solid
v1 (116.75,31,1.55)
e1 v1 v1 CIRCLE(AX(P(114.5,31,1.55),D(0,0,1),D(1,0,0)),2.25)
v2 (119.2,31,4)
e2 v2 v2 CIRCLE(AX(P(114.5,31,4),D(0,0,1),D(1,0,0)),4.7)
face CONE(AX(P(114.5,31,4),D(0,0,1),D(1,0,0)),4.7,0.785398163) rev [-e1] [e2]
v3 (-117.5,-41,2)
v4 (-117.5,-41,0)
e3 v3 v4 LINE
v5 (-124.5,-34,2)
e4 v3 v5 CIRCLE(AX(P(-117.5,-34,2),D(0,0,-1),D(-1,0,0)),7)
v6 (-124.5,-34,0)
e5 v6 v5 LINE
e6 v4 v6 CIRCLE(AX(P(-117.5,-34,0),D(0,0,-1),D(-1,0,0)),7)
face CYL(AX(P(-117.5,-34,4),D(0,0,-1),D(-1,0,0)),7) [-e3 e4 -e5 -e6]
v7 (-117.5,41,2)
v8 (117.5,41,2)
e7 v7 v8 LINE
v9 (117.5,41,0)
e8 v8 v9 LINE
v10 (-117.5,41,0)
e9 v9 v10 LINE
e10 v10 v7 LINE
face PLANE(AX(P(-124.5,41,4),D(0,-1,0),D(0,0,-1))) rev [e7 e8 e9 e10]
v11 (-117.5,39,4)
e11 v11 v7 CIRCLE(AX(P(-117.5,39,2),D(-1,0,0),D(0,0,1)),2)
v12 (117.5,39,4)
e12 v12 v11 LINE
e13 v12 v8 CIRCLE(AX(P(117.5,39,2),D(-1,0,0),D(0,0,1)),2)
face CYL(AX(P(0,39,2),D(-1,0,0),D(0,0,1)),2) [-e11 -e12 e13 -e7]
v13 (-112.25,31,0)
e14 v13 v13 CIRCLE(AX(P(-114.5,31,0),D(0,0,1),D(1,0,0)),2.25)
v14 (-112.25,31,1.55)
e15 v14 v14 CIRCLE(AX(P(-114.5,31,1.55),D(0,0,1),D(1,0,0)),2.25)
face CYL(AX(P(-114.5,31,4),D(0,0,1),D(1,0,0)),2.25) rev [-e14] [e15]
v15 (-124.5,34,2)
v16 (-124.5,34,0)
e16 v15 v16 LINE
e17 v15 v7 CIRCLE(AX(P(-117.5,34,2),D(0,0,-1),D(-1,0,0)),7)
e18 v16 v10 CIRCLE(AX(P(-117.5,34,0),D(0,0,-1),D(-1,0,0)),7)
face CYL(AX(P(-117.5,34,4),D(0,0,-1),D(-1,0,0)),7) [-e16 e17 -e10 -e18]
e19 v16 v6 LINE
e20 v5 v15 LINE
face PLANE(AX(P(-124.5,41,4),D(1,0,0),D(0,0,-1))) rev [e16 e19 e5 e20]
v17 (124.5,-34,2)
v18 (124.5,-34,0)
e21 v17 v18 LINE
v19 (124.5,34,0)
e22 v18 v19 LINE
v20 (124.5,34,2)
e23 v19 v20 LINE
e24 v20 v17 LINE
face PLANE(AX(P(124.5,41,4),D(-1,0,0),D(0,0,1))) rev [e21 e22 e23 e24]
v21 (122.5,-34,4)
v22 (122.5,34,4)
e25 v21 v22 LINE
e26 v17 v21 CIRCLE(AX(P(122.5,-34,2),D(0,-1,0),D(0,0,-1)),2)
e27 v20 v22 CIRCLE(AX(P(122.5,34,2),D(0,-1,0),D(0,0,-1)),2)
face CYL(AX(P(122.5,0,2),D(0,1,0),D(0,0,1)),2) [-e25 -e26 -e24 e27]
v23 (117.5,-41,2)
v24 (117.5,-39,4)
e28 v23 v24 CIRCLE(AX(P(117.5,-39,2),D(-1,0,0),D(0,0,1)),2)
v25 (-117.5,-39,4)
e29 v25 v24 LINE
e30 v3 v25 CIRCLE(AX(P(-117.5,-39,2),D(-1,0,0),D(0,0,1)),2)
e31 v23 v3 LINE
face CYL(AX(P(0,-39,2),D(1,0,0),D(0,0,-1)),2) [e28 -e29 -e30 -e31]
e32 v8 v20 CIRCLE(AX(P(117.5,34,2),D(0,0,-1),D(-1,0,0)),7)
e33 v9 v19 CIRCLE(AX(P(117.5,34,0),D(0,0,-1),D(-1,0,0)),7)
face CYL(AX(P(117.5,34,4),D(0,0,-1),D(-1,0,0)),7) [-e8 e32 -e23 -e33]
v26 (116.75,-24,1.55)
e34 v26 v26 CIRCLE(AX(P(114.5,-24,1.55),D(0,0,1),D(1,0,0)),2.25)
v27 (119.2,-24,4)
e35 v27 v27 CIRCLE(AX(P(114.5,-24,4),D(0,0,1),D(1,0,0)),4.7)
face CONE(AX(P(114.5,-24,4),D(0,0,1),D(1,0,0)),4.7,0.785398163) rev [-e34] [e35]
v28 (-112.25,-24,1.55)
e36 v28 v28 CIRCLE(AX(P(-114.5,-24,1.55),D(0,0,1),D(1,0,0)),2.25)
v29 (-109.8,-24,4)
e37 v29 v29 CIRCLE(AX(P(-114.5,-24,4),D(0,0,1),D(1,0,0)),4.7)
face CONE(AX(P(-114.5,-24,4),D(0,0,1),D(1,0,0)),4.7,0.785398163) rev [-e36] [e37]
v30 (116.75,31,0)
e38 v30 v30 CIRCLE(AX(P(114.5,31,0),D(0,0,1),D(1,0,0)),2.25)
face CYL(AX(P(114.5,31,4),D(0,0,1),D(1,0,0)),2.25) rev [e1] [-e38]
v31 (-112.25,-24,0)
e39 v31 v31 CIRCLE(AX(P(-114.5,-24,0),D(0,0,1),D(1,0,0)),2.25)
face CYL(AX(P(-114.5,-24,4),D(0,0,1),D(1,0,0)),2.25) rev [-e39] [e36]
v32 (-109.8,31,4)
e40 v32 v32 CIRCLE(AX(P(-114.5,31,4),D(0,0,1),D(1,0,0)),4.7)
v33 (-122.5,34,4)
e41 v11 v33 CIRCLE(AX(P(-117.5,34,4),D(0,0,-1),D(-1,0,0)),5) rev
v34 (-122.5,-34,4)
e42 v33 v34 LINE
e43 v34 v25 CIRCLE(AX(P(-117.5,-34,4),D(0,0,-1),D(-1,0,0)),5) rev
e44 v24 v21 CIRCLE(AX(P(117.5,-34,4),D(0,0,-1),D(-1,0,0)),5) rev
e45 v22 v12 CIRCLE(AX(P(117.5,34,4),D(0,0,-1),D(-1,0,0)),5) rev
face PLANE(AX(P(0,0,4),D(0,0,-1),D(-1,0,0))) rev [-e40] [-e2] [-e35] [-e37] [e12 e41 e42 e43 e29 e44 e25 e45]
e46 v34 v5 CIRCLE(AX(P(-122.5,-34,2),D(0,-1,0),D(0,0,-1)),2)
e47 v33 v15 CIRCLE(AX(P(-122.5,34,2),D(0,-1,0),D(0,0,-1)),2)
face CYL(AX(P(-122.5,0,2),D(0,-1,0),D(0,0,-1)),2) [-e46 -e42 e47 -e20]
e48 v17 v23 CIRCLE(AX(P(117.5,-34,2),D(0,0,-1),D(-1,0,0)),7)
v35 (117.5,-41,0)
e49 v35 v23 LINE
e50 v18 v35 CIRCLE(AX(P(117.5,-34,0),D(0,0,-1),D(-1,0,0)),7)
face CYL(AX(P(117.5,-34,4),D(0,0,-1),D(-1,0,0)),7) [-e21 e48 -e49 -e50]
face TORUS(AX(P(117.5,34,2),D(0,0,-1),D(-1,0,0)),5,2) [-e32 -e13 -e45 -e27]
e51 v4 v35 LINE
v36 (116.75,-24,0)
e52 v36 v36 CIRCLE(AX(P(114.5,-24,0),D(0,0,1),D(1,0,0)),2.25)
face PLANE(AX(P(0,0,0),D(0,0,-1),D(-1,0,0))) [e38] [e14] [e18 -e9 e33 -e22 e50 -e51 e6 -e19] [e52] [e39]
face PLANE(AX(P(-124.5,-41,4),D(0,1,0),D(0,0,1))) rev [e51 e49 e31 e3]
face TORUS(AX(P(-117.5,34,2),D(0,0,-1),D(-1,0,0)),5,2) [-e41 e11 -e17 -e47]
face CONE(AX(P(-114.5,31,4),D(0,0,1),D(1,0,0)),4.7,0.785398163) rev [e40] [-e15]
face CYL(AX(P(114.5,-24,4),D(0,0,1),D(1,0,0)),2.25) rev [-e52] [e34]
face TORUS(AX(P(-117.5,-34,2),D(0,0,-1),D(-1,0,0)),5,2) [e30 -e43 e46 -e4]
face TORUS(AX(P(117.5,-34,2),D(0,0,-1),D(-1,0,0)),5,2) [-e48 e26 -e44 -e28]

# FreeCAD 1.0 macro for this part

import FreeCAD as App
import Part
import Sketcher
Q = App.Units.Quantity


def edges_at(feature, points):
    """Names of the edges that pass closest to the given points."""
    edges = feature.Shape.Edges
    near = lambda p: min(range(len(edges)), key=lambda i: edges[i].distToShape(Part.Vertex(*p))[0])
    return sorted({f"Edge{near(p) + 1}" for p in points})

doc = App.newDocument("Part")
body = doc.addObject("PartDesign::Body", "Body")

# Sketch on XY plane
sketch1 = body.newObject("Sketcher::SketchObject", "Sketch")
sketch1.AttachmentSupport = (doc.getObject("XY_Plane"), [""])
sketch1.MapMode = "FlatFace"
sketch1.addGeometry(Part.LineSegment(App.Vector(-124, 41, 0), App.Vector(-124, -41, 0)), False)
sketch1.addGeometry(Part.LineSegment(App.Vector(-124, -41, 0), App.Vector(124, -41, 0)), False)
sketch1.addGeometry(Part.LineSegment(App.Vector(124, -41, 0), App.Vector(124, 41, 0)), False)
sketch1.addGeometry(Part.LineSegment(App.Vector(124, 41, 0), App.Vector(-124, 41, 0)), False)
sketch1.addConstraint(Sketcher.Constraint("Coincident", 0, 2, 1, 1))
sketch1.addConstraint(Sketcher.Constraint("Coincident", 1, 2, 2, 1))
sketch1.addConstraint(Sketcher.Constraint("Coincident", 2, 2, 3, 1))
sketch1.addConstraint(Sketcher.Constraint("Coincident", 3, 2, 0, 1))
sketch1.addConstraint(Sketcher.Constraint("Vertical", 0))
sketch1.addConstraint(Sketcher.Constraint("Horizontal", 1))
sketch1.addConstraint(Sketcher.Constraint("Vertical", 2))
sketch1.addConstraint(Sketcher.Constraint("Horizontal", 3))
sketch1.addConstraint(Sketcher.Constraint("Symmetric", 0, 2, 2, 2, -1, 1))
sketch1.addConstraint(Sketcher.Constraint("DistanceX", 1, 1, 1, 2, Q("249 mm")))
sketch1.addConstraint(Sketcher.Constraint("DistanceY", 0, 2, 0, 1, Q("82 mm")))
pad1 = body.newObject("PartDesign::Pad", "Pad")
pad1.Profile = sketch1
pad1.Length = 4

# Sketch on YZ plane
sketch2 = body.newObject("Sketcher::SketchObject", "Sketch001")
sketch2.AttachmentSupport = (doc.getObject("YZ_Plane"), [""])
sketch2.MapMode = "FlatFace"
sketch2.AttachmentOffset = App.Placement(App.Vector(0, 0, -114.5), App.Rotation())
sketch2.addGeometry(Part.LineSegment(App.Vector(-24, 0, 0), App.Vector(-24, 4, 0)), False)
sketch2.addGeometry(Part.LineSegment(App.Vector(-24, 4, 0), App.Vector(-28.7, 4, 0)), False)
sketch2.addGeometry(Part.LineSegment(App.Vector(-28.7, 4, 0), App.Vector(-26.2, 1.6, 0)), False)
sketch2.addGeometry(Part.LineSegment(App.Vector(-26.2, 1.6, 0), App.Vector(-26.2, 0, 0)), False)
sketch2.addGeometry(Part.LineSegment(App.Vector(-26.2, 0, 0), App.Vector(-24, 0, 0)), False)
sketch2.addGeometry(Part.LineSegment(App.Vector(-24, 4, 0), App.Vector(-24, 0, 0)), True)  # axis
sketch2.addConstraint(Sketcher.Constraint("Coincident", 0, 2, 1, 1))
sketch2.addConstraint(Sketcher.Constraint("Coincident", 1, 2, 2, 1))
sketch2.addConstraint(Sketcher.Constraint("Coincident", 2, 2, 3, 1))
sketch2.addConstraint(Sketcher.Constraint("Coincident", 3, 2, 4, 1))
sketch2.addConstraint(Sketcher.Constraint("Coincident", 4, 2, 0, 1))
sketch2.addConstraint(Sketcher.Constraint("Vertical", 0))
sketch2.addConstraint(Sketcher.Constraint("Horizontal", 1))
sketch2.addConstraint(Sketcher.Constraint("Vertical", 3))
sketch2.addConstraint(Sketcher.Constraint("Horizontal", 4))
sketch2.addConstraint(Sketcher.Constraint("Vertical", 5))
sketch2.addConstraint(Sketcher.Constraint("Coincident", 5, 1, 0, 2))
sketch2.addConstraint(Sketcher.Constraint("PointOnObject", 3, 2, -1))
sketch2.addConstraint(Sketcher.Constraint("PointOnObject", 5, 2, -1))
sketch2.addConstraint(Sketcher.Constraint("DistanceY", 0, 1, 0, 2, Q("4 mm")))
sketch2.addConstraint(Sketcher.Constraint("Angle", 2, Q("-45 deg")))
sketch2.addConstraint(Sketcher.Constraint("DistanceX", 1, 2, 1, 1, Q("4.7 mm")))
sketch2.addConstraint(Sketcher.Constraint("DistanceX", 0, 2, -1, 1, Q("24 mm")))
sketch2.addConstraint(Sketcher.Constraint("DistanceX", 4, 1, 4, 2, Q("2.25 mm")))
groove = body.newObject("PartDesign::Groove", "Groove")
groove.Profile = sketch2
groove.ReferenceAxis = (sketch2, ["Axis0"])
groove.Angle = 360
doc.recompute()

linearpattern = body.newObject("PartDesign::LinearPattern", "LinearPattern")
linearpattern.Originals = [groove]
linearpattern.Direction = (doc.getObject("Y_Axis"), [""])
linearpattern.Mode = "offset"
linearpattern.Offset = 55
linearpattern.Occurrences = 2
body.Tip = linearpattern
doc.recompute()

linearpattern2 = body.newObject("PartDesign::LinearPattern", "LinearPattern001")
linearpattern2.Originals = [groove]
linearpattern2.Direction = (doc.getObject("X_Axis"), [""])
linearpattern2.Mode = "offset"
linearpattern2.Offset = 229
linearpattern2.Occurrences = 2
body.Tip = linearpattern2
doc.recompute()

datumline = body.newObject("PartDesign::Line", "DatumLine")
datumline.Placement = App.Placement(App.Vector(0, 0, 0), App.Rotation(App.Vector(0, 0, 1), App.Vector(0.972348746, 0.233533542, 0)))
linearpattern3 = body.newObject("PartDesign::LinearPattern", "LinearPattern002")
linearpattern3.Originals = [groove]
linearpattern3.Direction = (datumline, [""])
linearpattern3.Mode = "offset"
linearpattern3.Offset = 235.512208
linearpattern3.Occurrences = 2
body.Tip = linearpattern3
doc.recompute()

fillet = body.newObject("PartDesign::Fillet", "Fillet")
fillet.Base = (linearpattern3, edges_at(linearpattern3, [
    (124.5, 41, 2),
    (124.5, -41, 2),
    (-124.5, -41, 2),
    (-124.5, 41, 2),
]))
fillet.Radius = 7
doc.recompute()

fillet2 = body.newObject("PartDesign::Fillet", "Fillet001")
fillet2.Base = (fillet, edges_at(fillet, [
    (0, 41, 4),
    (124.5, 0, 4),
    (-124.5, 0, 4),
    (0, -41, 4),
    (-122.45, 38.95, 4),
    (-122.45, -38.95, 4),
    (122.45, -38.95, 4),
    (122.45, 38.95, 4),
]))
fillet2.Radius = 2

doc.recompute()
